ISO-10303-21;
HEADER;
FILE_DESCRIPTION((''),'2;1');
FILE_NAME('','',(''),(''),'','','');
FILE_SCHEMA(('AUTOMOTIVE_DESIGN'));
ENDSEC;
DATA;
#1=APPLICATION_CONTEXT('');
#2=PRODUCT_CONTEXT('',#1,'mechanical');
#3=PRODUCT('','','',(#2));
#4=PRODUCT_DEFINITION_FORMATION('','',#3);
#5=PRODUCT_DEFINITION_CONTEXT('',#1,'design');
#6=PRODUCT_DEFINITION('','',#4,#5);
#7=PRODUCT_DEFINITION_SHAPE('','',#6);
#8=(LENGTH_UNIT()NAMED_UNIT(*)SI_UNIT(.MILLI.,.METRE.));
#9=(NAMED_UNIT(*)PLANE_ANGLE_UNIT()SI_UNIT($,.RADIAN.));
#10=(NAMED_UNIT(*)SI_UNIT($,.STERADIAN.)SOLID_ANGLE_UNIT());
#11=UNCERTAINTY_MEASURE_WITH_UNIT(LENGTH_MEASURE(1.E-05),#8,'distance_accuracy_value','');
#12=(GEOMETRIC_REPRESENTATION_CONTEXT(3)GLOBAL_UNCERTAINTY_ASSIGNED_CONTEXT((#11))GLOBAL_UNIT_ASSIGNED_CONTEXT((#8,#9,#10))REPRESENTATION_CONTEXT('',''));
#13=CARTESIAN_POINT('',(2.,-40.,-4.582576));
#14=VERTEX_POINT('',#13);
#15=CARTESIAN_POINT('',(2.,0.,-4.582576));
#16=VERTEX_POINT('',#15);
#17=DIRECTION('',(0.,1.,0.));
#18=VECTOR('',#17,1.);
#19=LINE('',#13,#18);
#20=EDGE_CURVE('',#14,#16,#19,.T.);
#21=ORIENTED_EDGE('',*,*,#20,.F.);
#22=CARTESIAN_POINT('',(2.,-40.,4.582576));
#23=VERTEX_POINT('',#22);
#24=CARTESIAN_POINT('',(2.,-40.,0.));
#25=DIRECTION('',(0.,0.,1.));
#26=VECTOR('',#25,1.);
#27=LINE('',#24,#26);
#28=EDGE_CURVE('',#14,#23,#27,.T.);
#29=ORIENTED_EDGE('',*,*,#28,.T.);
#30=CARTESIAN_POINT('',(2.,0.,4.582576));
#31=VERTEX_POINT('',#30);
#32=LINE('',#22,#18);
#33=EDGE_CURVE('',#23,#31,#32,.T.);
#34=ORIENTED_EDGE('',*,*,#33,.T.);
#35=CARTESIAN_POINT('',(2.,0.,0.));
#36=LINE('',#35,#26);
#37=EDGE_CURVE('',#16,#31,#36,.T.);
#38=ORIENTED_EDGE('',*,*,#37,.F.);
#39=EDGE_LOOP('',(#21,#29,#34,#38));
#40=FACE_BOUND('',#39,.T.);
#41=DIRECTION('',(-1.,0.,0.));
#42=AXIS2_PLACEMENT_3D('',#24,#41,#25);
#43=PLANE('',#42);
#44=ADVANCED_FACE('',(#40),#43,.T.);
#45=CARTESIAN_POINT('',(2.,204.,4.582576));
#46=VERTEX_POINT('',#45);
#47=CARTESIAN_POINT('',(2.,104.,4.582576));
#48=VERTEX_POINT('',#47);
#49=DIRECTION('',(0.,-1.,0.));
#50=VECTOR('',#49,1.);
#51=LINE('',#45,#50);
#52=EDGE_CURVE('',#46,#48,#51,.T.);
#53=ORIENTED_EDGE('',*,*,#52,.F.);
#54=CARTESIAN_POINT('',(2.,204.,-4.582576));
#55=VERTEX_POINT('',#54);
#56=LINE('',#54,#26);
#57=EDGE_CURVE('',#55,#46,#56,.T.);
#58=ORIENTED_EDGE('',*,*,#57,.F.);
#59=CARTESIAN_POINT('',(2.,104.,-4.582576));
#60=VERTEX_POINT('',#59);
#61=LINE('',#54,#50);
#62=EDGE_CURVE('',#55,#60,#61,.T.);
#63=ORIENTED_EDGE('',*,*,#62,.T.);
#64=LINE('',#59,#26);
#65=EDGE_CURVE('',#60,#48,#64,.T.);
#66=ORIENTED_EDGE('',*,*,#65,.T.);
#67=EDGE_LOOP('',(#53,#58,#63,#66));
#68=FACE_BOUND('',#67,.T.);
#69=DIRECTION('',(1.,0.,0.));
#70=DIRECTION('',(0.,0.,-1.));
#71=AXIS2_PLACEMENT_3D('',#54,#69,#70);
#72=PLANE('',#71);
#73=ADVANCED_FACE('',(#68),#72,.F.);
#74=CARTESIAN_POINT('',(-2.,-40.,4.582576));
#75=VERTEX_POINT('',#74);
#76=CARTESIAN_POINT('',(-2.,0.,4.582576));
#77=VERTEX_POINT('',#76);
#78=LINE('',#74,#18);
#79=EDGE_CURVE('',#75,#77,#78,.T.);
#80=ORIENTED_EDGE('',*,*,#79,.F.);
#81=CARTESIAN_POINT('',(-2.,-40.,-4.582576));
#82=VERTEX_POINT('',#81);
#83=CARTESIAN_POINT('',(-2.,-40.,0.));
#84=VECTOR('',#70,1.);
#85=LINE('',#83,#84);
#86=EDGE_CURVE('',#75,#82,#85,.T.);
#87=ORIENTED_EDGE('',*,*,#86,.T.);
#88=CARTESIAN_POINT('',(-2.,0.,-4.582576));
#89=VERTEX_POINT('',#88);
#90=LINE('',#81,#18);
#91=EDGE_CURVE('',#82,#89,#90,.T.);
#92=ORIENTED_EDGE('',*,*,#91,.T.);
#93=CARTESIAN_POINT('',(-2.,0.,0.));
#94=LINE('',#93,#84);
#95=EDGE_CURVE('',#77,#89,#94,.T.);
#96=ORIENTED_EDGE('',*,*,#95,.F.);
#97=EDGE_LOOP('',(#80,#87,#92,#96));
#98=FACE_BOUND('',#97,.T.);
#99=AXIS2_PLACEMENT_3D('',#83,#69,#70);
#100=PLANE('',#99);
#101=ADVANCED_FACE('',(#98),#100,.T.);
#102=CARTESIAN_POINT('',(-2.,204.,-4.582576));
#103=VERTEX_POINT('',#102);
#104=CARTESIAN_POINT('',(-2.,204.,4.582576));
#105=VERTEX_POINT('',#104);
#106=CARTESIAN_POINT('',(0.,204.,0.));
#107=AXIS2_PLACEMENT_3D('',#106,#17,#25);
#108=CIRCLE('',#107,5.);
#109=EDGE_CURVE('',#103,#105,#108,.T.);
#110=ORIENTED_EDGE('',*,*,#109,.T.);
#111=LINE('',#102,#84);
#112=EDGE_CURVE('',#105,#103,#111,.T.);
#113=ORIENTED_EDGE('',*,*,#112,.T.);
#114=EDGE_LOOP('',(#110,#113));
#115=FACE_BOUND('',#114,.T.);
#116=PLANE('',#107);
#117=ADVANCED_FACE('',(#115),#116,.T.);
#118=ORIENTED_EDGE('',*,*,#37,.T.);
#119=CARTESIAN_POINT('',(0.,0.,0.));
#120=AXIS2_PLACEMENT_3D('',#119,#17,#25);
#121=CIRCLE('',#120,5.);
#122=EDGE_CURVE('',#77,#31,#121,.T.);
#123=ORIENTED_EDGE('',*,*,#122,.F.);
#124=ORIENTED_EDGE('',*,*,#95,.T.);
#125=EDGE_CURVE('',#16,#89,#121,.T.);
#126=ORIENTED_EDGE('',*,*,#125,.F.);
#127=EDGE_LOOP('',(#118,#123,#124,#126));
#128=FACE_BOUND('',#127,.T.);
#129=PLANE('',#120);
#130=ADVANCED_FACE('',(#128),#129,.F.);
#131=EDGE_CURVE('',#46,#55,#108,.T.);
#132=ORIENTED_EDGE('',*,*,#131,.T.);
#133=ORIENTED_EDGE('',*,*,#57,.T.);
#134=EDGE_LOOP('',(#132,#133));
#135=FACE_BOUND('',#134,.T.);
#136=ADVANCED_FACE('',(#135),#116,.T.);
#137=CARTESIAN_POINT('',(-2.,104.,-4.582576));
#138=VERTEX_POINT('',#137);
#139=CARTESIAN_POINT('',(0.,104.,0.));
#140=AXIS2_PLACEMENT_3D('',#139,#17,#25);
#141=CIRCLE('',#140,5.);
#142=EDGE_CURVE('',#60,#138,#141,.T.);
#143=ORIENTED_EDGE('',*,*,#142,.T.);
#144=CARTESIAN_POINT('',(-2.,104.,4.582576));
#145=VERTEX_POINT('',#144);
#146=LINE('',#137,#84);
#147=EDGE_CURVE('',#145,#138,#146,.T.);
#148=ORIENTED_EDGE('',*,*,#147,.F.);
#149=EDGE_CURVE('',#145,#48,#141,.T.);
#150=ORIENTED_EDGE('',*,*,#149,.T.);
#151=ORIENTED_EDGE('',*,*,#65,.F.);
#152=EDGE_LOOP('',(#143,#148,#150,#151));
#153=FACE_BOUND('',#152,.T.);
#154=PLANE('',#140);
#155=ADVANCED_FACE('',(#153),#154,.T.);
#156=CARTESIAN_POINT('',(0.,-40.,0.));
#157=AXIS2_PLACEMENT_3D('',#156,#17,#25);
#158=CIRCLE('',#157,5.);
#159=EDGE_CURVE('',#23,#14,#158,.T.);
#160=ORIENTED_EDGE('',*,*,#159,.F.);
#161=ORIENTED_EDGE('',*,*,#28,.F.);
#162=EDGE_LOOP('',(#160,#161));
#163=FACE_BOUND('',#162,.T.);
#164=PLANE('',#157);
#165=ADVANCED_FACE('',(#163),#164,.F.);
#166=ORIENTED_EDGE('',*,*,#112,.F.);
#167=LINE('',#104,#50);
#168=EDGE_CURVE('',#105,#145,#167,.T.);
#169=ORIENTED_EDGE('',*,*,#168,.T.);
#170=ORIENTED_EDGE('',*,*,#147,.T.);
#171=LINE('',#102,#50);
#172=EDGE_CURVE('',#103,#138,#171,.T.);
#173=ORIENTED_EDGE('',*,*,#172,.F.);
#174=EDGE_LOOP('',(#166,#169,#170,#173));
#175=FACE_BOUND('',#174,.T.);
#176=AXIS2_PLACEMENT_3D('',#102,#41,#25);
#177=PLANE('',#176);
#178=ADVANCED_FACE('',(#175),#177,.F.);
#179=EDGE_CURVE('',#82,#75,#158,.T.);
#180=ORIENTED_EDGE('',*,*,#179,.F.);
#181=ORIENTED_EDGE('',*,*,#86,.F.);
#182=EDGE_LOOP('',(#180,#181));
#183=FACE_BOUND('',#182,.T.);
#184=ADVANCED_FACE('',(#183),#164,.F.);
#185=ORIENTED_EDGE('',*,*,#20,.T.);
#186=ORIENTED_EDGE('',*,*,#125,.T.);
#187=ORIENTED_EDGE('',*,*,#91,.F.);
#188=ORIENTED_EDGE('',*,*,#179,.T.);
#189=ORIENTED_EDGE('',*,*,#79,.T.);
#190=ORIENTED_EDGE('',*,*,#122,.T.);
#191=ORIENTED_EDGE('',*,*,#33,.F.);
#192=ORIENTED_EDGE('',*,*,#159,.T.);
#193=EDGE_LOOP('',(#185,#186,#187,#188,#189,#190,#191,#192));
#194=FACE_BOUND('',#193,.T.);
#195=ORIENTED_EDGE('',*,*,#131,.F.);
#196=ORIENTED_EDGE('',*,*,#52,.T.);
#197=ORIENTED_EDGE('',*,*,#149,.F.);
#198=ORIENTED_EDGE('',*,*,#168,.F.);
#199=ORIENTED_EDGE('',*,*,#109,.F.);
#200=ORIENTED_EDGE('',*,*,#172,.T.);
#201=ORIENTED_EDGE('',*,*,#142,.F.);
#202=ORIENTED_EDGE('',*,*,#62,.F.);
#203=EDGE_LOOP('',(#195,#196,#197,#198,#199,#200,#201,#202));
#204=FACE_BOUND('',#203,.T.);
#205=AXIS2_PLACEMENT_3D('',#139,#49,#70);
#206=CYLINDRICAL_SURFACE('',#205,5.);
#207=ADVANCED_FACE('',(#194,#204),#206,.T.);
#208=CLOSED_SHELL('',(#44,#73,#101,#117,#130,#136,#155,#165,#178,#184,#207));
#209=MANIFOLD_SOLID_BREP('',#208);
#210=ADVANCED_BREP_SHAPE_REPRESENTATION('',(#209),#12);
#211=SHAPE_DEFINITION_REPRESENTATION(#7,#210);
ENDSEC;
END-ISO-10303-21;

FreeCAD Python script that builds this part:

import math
import FreeCAD as App
import Part
import Sketcher
from FreeCAD import Vector
Q = App.Units.Quantity

doc = App.newDocument("Part")
params = doc.addObject("Spreadsheet::Sheet", "Params")
for row, (alias, value) in enumerate([
    ("sketch1_diameter", "10 mm"),
    ("pad1_length", "104 mm"),
    ("sketch2_radius", "5 mm"),
    ("pad2_length", "100 mm"),
    ("sketch3_radius", "5 mm"),
    ("pad3_length", "40 mm"),
], start=1):
    params.set(f"A{row}", alias)
    params.set(f"B{row}", "=" + value)
    params.setAlias(f"B{row}", alias)

body = doc.addObject("PartDesign::Body", "Body")

# Sketch on XZ plane
sketch1 = doc.addObject("Sketcher::SketchObject", "Sketch")
body.addObject(sketch1)
sketch1.AttachmentSupport = (doc.XZ_Plane, [""])
sketch1.MapMode = "FlatFace"
sketch1.addGeometry(Part.Circle(Vector(0, 0, 0), Vector(0, 0, 1), 5), False)
sketch1.addConstraint(Sketcher.Constraint("Coincident", 0, 3, -1, 1))
sketch1.addConstraint(Sketcher.Constraint("Diameter", 0, Q("10 mm")))
sketch1.setExpression("Constraints[1]", "Params.sketch1_diameter")
pad1 = doc.addObject("PartDesign::Pad", "Pad")
body.addObject(pad1)
pad1.Profile = sketch1
pad1.setExpression("Length", "Params.pad1_length")
pad1.Reversed = True

# Sketch on XZ plane
sketch2 = doc.addObject("Sketcher::SketchObject", "Sketch001")
body.addObject(sketch2)
sketch2.AttachmentSupport = (doc.XZ_Plane, [""])
sketch2.MapMode = "FlatFace"
sketch2.AttachmentOffset = App.Placement(Vector(0, 0, -104), App.Rotation())
sketch2.addGeometry(Part.LineSegment(Vector(-2, 5, 0), Vector(-2, -5, 0)), False)
sketch2.addGeometry(Part.ArcOfCircle(Part.Circle(Vector(0, 0, 0), Vector(0, 0, 1), 5), math.radians(114), math.radians(246)), False)
sketch2.addGeometry(Part.LineSegment(Vector(2, -5, 0), Vector(2, 5, 0)), False)
sketch2.addGeometry(Part.ArcOfCircle(Part.Circle(Vector(0, 0, 0), Vector(0, 0, 1), 5), math.radians(-66), math.radians(66)), False)
sketch2.addConstraint(Sketcher.Constraint("Coincident", 0, 1, 1, 1))
sketch2.addConstraint(Sketcher.Constraint("Coincident", 1, 2, 0, 2))
sketch2.addConstraint(Sketcher.Constraint("Coincident", 2, 1, 3, 1))
sketch2.addConstraint(Sketcher.Constraint("Coincident", 3, 2, 2, 2))
sketch2.addConstraint(Sketcher.Constraint("Vertical", 0))
sketch2.addConstraint(Sketcher.Constraint("Vertical", 2))
sketch2.addConstraint(Sketcher.Constraint("Coincident", 1, 3, -1, 1))
sketch2.addConstraint(Sketcher.Constraint("Coincident", 3, 3, -1, 1))
sketch2.addConstraint(Sketcher.Constraint("Equal", 1, 3))
sketch2.addConstraint(Sketcher.Constraint("Horizontal", 1, 2, 2, 1))
sketch2.addConstraint(Sketcher.Constraint("Radius", 1, Q("5 mm")))
sketch2.addConstraint(Sketcher.Constraint("DistanceX", 0, 1, -1, 1, Q("2 mm")))
sketch2.setExpression("Constraints[10]", "Params.sketch2_radius")
pad2 = doc.addObject("PartDesign::Pad", "Pad001")
body.addObject(pad2)
pad2.Profile = sketch2
pad2.setExpression("Length", "Params.pad2_length")
pad2.Reversed = True

# Sketch on XZ plane
sketch3 = doc.addObject("Sketcher::SketchObject", "Sketch002")
body.addObject(sketch3)
sketch3.AttachmentSupport = (doc.XZ_Plane, [""])
sketch3.MapMode = "FlatFace"
sketch3.addGeometry(Part.LineSegment(Vector(-2, 5, 0), Vector(-2, -5, 0)), False)
sketch3.addGeometry(Part.ArcOfCircle(Part.Circle(Vector(0, 0, 0), Vector(0, 0, 1), 5), math.radians(114), math.radians(246)), False)
sketch3.addGeometry(Part.LineSegment(Vector(2, -5, 0), Vector(2, 5, 0)), False)
sketch3.addGeometry(Part.ArcOfCircle(Part.Circle(Vector(0, 0, 0), Vector(0, 0, 1), 5), math.radians(-66), math.radians(66)), False)
sketch3.addConstraint(Sketcher.Constraint("Coincident", 0, 1, 1, 1))
sketch3.addConstraint(Sketcher.Constraint("Coincident", 1, 2, 0, 2))
sketch3.addConstraint(Sketcher.Constraint("Coincident", 2, 1, 3, 1))
sketch3.addConstraint(Sketcher.Constraint("Coincident", 3, 2, 2, 2))
sketch3.addConstraint(Sketcher.Constraint("Vertical", 0))
sketch3.addConstraint(Sketcher.Constraint("Vertical", 2))
sketch3.addConstraint(Sketcher.Constraint("Coincident", 1, 3, -1, 1))
sketch3.addConstraint(Sketcher.Constraint("Coincident", 3, 3, -1, 1))
sketch3.addConstraint(Sketcher.Constraint("Equal", 1, 3))
sketch3.addConstraint(Sketcher.Constraint("Horizontal", 1, 2, 2, 1))
sketch3.addConstraint(Sketcher.Constraint("Radius", 1, Q("5 mm")))
sketch3.addConstraint(Sketcher.Constraint("DistanceX", 0, 1, -1, 1, Q("2 mm")))
sketch3.setExpression("Constraints[10]", "Params.sketch3_radius")
pad3 = doc.addObject("PartDesign::Pad", "Pad002")
body.addObject(pad3)
pad3.Profile = sketch3
pad3.setExpression("Length", "Params.pad3_length")

doc.recompute()
